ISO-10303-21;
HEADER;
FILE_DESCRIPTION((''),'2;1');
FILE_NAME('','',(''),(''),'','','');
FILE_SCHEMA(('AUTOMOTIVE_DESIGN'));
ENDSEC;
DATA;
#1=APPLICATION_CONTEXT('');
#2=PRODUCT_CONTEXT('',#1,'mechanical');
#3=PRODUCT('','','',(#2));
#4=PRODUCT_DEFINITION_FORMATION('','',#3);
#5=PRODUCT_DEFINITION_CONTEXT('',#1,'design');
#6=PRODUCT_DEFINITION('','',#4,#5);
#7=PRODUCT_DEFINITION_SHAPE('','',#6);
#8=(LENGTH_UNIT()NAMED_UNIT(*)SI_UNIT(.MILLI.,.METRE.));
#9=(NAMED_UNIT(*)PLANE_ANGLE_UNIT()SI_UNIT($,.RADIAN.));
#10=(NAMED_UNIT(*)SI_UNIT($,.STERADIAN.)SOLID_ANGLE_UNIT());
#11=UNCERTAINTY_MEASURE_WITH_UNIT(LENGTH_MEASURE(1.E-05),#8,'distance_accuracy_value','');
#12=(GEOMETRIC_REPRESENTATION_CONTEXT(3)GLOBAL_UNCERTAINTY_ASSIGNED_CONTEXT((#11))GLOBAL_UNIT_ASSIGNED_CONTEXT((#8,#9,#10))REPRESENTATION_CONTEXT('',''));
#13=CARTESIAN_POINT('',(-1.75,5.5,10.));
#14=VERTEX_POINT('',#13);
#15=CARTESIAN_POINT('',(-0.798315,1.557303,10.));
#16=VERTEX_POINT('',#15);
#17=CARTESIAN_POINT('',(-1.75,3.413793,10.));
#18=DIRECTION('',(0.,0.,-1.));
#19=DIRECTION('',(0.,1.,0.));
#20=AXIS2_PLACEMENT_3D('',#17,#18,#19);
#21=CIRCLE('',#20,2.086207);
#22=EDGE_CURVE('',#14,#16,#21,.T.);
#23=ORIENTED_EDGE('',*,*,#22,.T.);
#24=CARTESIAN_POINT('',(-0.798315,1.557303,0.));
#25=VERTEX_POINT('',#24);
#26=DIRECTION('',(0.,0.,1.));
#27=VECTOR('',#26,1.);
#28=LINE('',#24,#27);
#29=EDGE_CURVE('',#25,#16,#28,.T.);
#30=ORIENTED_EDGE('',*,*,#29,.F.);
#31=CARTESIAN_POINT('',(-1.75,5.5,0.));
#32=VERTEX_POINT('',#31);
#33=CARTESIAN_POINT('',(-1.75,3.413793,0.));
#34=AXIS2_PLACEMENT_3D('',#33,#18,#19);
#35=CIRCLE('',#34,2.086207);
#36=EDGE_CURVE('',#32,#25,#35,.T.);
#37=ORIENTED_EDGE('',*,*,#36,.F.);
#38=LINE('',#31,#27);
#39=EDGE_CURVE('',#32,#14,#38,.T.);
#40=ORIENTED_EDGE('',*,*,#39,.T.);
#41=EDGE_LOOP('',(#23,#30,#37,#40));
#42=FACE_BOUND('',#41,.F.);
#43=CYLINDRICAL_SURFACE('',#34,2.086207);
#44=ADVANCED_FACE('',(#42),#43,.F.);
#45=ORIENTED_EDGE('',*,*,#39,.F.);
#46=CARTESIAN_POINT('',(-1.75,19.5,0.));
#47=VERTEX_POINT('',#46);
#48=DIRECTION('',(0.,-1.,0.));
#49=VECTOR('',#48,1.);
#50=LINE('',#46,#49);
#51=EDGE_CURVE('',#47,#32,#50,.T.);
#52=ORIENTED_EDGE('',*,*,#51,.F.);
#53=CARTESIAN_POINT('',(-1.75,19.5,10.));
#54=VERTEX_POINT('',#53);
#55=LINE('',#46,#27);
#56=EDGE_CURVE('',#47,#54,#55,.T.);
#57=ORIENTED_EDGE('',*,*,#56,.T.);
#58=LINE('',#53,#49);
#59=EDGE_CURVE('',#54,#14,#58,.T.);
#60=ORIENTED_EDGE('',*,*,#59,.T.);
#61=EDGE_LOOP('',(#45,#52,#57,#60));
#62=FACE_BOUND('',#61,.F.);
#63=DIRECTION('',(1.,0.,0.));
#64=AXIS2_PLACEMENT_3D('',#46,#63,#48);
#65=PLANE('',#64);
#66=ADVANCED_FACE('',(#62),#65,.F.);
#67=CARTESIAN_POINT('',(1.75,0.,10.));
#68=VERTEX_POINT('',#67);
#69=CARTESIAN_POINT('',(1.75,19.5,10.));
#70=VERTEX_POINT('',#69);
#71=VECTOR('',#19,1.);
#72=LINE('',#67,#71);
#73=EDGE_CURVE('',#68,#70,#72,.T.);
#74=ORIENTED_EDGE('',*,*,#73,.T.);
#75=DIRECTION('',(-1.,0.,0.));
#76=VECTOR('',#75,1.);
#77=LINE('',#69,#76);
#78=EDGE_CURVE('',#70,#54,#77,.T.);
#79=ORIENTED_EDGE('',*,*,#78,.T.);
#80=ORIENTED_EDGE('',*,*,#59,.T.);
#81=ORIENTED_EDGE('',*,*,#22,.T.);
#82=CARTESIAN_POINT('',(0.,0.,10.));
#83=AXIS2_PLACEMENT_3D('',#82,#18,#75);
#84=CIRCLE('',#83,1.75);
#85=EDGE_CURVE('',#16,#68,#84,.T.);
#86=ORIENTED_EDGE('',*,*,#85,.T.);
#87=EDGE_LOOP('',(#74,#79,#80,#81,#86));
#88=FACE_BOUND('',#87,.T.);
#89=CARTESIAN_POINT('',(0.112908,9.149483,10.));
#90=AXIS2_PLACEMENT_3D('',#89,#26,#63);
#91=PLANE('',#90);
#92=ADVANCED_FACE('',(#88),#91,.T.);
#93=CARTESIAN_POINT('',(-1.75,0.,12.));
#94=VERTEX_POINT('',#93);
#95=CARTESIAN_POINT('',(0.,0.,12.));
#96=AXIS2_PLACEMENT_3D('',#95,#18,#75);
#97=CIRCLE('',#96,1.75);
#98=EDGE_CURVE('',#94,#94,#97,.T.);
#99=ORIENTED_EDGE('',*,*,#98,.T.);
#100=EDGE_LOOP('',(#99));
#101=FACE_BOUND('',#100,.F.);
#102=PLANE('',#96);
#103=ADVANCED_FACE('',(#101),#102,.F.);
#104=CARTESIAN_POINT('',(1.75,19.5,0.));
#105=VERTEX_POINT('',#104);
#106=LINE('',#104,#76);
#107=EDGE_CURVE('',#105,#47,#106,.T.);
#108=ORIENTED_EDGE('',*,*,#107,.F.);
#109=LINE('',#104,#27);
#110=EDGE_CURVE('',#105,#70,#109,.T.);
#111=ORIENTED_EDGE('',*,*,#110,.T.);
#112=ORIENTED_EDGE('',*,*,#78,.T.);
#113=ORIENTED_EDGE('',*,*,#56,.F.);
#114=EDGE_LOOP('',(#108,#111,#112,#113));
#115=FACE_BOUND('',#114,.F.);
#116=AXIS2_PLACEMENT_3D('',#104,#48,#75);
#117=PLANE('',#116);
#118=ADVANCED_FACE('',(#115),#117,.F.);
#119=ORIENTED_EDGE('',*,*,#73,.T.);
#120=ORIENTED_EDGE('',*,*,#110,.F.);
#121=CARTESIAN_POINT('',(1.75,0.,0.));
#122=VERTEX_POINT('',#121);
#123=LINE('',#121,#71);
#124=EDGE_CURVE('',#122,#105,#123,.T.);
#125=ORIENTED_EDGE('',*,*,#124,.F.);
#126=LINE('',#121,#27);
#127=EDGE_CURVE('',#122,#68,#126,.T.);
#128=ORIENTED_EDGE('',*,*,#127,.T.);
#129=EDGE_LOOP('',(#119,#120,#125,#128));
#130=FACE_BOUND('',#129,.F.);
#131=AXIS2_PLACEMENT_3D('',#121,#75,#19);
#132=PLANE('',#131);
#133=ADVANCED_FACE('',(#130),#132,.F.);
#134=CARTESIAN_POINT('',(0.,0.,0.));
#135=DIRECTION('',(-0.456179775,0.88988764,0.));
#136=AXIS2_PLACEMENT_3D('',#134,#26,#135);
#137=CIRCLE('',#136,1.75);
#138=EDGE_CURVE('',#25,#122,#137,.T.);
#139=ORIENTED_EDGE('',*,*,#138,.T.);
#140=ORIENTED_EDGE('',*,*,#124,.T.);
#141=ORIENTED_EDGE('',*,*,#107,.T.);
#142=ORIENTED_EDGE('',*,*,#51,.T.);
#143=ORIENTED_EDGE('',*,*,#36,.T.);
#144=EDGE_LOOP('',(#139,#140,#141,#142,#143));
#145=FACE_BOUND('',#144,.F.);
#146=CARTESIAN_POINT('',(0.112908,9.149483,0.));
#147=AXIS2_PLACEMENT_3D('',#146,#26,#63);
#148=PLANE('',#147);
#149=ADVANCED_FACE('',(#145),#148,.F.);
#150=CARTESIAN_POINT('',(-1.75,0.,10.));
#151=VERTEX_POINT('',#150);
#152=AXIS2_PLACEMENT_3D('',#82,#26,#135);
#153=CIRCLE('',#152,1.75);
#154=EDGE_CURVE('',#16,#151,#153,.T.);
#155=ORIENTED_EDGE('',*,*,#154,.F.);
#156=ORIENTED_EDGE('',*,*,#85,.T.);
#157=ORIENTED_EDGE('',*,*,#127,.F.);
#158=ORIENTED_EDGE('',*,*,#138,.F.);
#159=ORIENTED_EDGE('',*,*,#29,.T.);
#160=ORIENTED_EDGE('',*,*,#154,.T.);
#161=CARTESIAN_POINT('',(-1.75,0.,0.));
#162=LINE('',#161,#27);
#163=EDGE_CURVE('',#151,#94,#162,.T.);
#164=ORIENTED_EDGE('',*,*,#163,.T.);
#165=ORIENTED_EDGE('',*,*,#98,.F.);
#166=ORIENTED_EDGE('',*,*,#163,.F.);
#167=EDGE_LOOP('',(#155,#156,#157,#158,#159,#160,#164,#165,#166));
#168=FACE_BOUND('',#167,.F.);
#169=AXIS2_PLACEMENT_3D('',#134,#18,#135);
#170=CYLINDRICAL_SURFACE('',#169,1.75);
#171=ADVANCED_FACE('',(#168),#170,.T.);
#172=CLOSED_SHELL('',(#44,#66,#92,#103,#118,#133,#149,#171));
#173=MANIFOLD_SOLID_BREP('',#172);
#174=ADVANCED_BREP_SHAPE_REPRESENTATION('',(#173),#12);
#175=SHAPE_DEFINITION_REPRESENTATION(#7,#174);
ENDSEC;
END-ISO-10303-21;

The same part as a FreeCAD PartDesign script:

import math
import FreeCAD as App
import Part
import Sketcher
Q = App.Units.Quantity

doc = App.newDocument("Part")
body = doc.addObject("PartDesign::Body", "Body")

sketch1 = doc.addObject("Sketcher::SketchObject", "Sketch")
body.addObject(sketch1)
sketch1.AttachmentSupport = (doc.XY_Plane, [""])
sketch1.MapMode = "FlatFace"
sketch1.addGeometry([
    Part.LineSegment(App.Vector(1.8, 0, 0), App.Vector(1.8, 19.5, 0)),
    Part.LineSegment(App.Vector(1.8, 19.5, 0), App.Vector(-1.8, 19.5, 0)),
    Part.LineSegment(App.Vector(-1.8, 19.5, 0), App.Vector(-1.8, 5.5, 0)),
    Part.ArcOfCircle(Part.Circle(App.Vector(-1.7, 3.4, 0), App.Vector(0, 0, 1), 2.1), math.radians(-63), math.radians(90)),
    Part.ArcOfCircle(Part.Circle(App.Vector(0, 0, 0), App.Vector(0, 0, 1), 1.8), math.radians(117), math.radians(360)),
], False)
sketch1.addConstraint([
    Sketcher.Constraint("Coincident", 0, 2, 1, 1),
    Sketcher.Constraint("Coincident", 1, 2, 2, 1),
    Sketcher.Constraint("Coincident", 2, 2, 3, 2),
    Sketcher.Constraint("Tangent", 3, 1, 4, 1),
    Sketcher.Constraint("Tangent", 4, 2, 0, 1),
    Sketcher.Constraint("Vertical", 0),
    Sketcher.Constraint("Horizontal", 1),
    Sketcher.Constraint("Vertical", 2),
    Sketcher.Constraint("Coincident", 4, 3, -1, 1),
    Sketcher.Constraint("Vertical", 3, 3, 1, 2),
    Sketcher.Constraint("DistanceY", 2, 2, 2, 1, Q("14 mm")),
    Sketcher.Constraint("Radius", 4, Q("1.75 mm")),
    Sketcher.Constraint("DistanceX", 1, 2, 1, 1, Q("3.5 mm")),
    Sketcher.Constraint("DistanceY", 0, 1, 0, 2, Q("19.5 mm")),
])
pad1 = doc.addObject("PartDesign::Pad", "Pad")
body.addObject(pad1)
pad1.Profile = sketch1
pad1.Length = 10

sketch2 = doc.addObject("Sketcher::SketchObject", "Sketch001")
body.addObject(sketch2)
sketch2.AttachmentSupport = (doc.XY_Plane, [""])
sketch2.MapMode = "FlatFace"
sketch2.addGeometry(Part.Circle(App.Vector(0, 0, 0), App.Vector(0, 0, 1), 1.8), False)
sketch2.addConstraint([
    Sketcher.Constraint("Coincident", 0, 3, -1, 1),
    Sketcher.Constraint("Diameter", 0, Q("3.5 mm")),
])
pad2 = doc.addObject("PartDesign::Pad", "Pad001")
body.addObject(pad2)
pad2.Profile = sketch2
pad2.Length = 12

doc.recompute()
